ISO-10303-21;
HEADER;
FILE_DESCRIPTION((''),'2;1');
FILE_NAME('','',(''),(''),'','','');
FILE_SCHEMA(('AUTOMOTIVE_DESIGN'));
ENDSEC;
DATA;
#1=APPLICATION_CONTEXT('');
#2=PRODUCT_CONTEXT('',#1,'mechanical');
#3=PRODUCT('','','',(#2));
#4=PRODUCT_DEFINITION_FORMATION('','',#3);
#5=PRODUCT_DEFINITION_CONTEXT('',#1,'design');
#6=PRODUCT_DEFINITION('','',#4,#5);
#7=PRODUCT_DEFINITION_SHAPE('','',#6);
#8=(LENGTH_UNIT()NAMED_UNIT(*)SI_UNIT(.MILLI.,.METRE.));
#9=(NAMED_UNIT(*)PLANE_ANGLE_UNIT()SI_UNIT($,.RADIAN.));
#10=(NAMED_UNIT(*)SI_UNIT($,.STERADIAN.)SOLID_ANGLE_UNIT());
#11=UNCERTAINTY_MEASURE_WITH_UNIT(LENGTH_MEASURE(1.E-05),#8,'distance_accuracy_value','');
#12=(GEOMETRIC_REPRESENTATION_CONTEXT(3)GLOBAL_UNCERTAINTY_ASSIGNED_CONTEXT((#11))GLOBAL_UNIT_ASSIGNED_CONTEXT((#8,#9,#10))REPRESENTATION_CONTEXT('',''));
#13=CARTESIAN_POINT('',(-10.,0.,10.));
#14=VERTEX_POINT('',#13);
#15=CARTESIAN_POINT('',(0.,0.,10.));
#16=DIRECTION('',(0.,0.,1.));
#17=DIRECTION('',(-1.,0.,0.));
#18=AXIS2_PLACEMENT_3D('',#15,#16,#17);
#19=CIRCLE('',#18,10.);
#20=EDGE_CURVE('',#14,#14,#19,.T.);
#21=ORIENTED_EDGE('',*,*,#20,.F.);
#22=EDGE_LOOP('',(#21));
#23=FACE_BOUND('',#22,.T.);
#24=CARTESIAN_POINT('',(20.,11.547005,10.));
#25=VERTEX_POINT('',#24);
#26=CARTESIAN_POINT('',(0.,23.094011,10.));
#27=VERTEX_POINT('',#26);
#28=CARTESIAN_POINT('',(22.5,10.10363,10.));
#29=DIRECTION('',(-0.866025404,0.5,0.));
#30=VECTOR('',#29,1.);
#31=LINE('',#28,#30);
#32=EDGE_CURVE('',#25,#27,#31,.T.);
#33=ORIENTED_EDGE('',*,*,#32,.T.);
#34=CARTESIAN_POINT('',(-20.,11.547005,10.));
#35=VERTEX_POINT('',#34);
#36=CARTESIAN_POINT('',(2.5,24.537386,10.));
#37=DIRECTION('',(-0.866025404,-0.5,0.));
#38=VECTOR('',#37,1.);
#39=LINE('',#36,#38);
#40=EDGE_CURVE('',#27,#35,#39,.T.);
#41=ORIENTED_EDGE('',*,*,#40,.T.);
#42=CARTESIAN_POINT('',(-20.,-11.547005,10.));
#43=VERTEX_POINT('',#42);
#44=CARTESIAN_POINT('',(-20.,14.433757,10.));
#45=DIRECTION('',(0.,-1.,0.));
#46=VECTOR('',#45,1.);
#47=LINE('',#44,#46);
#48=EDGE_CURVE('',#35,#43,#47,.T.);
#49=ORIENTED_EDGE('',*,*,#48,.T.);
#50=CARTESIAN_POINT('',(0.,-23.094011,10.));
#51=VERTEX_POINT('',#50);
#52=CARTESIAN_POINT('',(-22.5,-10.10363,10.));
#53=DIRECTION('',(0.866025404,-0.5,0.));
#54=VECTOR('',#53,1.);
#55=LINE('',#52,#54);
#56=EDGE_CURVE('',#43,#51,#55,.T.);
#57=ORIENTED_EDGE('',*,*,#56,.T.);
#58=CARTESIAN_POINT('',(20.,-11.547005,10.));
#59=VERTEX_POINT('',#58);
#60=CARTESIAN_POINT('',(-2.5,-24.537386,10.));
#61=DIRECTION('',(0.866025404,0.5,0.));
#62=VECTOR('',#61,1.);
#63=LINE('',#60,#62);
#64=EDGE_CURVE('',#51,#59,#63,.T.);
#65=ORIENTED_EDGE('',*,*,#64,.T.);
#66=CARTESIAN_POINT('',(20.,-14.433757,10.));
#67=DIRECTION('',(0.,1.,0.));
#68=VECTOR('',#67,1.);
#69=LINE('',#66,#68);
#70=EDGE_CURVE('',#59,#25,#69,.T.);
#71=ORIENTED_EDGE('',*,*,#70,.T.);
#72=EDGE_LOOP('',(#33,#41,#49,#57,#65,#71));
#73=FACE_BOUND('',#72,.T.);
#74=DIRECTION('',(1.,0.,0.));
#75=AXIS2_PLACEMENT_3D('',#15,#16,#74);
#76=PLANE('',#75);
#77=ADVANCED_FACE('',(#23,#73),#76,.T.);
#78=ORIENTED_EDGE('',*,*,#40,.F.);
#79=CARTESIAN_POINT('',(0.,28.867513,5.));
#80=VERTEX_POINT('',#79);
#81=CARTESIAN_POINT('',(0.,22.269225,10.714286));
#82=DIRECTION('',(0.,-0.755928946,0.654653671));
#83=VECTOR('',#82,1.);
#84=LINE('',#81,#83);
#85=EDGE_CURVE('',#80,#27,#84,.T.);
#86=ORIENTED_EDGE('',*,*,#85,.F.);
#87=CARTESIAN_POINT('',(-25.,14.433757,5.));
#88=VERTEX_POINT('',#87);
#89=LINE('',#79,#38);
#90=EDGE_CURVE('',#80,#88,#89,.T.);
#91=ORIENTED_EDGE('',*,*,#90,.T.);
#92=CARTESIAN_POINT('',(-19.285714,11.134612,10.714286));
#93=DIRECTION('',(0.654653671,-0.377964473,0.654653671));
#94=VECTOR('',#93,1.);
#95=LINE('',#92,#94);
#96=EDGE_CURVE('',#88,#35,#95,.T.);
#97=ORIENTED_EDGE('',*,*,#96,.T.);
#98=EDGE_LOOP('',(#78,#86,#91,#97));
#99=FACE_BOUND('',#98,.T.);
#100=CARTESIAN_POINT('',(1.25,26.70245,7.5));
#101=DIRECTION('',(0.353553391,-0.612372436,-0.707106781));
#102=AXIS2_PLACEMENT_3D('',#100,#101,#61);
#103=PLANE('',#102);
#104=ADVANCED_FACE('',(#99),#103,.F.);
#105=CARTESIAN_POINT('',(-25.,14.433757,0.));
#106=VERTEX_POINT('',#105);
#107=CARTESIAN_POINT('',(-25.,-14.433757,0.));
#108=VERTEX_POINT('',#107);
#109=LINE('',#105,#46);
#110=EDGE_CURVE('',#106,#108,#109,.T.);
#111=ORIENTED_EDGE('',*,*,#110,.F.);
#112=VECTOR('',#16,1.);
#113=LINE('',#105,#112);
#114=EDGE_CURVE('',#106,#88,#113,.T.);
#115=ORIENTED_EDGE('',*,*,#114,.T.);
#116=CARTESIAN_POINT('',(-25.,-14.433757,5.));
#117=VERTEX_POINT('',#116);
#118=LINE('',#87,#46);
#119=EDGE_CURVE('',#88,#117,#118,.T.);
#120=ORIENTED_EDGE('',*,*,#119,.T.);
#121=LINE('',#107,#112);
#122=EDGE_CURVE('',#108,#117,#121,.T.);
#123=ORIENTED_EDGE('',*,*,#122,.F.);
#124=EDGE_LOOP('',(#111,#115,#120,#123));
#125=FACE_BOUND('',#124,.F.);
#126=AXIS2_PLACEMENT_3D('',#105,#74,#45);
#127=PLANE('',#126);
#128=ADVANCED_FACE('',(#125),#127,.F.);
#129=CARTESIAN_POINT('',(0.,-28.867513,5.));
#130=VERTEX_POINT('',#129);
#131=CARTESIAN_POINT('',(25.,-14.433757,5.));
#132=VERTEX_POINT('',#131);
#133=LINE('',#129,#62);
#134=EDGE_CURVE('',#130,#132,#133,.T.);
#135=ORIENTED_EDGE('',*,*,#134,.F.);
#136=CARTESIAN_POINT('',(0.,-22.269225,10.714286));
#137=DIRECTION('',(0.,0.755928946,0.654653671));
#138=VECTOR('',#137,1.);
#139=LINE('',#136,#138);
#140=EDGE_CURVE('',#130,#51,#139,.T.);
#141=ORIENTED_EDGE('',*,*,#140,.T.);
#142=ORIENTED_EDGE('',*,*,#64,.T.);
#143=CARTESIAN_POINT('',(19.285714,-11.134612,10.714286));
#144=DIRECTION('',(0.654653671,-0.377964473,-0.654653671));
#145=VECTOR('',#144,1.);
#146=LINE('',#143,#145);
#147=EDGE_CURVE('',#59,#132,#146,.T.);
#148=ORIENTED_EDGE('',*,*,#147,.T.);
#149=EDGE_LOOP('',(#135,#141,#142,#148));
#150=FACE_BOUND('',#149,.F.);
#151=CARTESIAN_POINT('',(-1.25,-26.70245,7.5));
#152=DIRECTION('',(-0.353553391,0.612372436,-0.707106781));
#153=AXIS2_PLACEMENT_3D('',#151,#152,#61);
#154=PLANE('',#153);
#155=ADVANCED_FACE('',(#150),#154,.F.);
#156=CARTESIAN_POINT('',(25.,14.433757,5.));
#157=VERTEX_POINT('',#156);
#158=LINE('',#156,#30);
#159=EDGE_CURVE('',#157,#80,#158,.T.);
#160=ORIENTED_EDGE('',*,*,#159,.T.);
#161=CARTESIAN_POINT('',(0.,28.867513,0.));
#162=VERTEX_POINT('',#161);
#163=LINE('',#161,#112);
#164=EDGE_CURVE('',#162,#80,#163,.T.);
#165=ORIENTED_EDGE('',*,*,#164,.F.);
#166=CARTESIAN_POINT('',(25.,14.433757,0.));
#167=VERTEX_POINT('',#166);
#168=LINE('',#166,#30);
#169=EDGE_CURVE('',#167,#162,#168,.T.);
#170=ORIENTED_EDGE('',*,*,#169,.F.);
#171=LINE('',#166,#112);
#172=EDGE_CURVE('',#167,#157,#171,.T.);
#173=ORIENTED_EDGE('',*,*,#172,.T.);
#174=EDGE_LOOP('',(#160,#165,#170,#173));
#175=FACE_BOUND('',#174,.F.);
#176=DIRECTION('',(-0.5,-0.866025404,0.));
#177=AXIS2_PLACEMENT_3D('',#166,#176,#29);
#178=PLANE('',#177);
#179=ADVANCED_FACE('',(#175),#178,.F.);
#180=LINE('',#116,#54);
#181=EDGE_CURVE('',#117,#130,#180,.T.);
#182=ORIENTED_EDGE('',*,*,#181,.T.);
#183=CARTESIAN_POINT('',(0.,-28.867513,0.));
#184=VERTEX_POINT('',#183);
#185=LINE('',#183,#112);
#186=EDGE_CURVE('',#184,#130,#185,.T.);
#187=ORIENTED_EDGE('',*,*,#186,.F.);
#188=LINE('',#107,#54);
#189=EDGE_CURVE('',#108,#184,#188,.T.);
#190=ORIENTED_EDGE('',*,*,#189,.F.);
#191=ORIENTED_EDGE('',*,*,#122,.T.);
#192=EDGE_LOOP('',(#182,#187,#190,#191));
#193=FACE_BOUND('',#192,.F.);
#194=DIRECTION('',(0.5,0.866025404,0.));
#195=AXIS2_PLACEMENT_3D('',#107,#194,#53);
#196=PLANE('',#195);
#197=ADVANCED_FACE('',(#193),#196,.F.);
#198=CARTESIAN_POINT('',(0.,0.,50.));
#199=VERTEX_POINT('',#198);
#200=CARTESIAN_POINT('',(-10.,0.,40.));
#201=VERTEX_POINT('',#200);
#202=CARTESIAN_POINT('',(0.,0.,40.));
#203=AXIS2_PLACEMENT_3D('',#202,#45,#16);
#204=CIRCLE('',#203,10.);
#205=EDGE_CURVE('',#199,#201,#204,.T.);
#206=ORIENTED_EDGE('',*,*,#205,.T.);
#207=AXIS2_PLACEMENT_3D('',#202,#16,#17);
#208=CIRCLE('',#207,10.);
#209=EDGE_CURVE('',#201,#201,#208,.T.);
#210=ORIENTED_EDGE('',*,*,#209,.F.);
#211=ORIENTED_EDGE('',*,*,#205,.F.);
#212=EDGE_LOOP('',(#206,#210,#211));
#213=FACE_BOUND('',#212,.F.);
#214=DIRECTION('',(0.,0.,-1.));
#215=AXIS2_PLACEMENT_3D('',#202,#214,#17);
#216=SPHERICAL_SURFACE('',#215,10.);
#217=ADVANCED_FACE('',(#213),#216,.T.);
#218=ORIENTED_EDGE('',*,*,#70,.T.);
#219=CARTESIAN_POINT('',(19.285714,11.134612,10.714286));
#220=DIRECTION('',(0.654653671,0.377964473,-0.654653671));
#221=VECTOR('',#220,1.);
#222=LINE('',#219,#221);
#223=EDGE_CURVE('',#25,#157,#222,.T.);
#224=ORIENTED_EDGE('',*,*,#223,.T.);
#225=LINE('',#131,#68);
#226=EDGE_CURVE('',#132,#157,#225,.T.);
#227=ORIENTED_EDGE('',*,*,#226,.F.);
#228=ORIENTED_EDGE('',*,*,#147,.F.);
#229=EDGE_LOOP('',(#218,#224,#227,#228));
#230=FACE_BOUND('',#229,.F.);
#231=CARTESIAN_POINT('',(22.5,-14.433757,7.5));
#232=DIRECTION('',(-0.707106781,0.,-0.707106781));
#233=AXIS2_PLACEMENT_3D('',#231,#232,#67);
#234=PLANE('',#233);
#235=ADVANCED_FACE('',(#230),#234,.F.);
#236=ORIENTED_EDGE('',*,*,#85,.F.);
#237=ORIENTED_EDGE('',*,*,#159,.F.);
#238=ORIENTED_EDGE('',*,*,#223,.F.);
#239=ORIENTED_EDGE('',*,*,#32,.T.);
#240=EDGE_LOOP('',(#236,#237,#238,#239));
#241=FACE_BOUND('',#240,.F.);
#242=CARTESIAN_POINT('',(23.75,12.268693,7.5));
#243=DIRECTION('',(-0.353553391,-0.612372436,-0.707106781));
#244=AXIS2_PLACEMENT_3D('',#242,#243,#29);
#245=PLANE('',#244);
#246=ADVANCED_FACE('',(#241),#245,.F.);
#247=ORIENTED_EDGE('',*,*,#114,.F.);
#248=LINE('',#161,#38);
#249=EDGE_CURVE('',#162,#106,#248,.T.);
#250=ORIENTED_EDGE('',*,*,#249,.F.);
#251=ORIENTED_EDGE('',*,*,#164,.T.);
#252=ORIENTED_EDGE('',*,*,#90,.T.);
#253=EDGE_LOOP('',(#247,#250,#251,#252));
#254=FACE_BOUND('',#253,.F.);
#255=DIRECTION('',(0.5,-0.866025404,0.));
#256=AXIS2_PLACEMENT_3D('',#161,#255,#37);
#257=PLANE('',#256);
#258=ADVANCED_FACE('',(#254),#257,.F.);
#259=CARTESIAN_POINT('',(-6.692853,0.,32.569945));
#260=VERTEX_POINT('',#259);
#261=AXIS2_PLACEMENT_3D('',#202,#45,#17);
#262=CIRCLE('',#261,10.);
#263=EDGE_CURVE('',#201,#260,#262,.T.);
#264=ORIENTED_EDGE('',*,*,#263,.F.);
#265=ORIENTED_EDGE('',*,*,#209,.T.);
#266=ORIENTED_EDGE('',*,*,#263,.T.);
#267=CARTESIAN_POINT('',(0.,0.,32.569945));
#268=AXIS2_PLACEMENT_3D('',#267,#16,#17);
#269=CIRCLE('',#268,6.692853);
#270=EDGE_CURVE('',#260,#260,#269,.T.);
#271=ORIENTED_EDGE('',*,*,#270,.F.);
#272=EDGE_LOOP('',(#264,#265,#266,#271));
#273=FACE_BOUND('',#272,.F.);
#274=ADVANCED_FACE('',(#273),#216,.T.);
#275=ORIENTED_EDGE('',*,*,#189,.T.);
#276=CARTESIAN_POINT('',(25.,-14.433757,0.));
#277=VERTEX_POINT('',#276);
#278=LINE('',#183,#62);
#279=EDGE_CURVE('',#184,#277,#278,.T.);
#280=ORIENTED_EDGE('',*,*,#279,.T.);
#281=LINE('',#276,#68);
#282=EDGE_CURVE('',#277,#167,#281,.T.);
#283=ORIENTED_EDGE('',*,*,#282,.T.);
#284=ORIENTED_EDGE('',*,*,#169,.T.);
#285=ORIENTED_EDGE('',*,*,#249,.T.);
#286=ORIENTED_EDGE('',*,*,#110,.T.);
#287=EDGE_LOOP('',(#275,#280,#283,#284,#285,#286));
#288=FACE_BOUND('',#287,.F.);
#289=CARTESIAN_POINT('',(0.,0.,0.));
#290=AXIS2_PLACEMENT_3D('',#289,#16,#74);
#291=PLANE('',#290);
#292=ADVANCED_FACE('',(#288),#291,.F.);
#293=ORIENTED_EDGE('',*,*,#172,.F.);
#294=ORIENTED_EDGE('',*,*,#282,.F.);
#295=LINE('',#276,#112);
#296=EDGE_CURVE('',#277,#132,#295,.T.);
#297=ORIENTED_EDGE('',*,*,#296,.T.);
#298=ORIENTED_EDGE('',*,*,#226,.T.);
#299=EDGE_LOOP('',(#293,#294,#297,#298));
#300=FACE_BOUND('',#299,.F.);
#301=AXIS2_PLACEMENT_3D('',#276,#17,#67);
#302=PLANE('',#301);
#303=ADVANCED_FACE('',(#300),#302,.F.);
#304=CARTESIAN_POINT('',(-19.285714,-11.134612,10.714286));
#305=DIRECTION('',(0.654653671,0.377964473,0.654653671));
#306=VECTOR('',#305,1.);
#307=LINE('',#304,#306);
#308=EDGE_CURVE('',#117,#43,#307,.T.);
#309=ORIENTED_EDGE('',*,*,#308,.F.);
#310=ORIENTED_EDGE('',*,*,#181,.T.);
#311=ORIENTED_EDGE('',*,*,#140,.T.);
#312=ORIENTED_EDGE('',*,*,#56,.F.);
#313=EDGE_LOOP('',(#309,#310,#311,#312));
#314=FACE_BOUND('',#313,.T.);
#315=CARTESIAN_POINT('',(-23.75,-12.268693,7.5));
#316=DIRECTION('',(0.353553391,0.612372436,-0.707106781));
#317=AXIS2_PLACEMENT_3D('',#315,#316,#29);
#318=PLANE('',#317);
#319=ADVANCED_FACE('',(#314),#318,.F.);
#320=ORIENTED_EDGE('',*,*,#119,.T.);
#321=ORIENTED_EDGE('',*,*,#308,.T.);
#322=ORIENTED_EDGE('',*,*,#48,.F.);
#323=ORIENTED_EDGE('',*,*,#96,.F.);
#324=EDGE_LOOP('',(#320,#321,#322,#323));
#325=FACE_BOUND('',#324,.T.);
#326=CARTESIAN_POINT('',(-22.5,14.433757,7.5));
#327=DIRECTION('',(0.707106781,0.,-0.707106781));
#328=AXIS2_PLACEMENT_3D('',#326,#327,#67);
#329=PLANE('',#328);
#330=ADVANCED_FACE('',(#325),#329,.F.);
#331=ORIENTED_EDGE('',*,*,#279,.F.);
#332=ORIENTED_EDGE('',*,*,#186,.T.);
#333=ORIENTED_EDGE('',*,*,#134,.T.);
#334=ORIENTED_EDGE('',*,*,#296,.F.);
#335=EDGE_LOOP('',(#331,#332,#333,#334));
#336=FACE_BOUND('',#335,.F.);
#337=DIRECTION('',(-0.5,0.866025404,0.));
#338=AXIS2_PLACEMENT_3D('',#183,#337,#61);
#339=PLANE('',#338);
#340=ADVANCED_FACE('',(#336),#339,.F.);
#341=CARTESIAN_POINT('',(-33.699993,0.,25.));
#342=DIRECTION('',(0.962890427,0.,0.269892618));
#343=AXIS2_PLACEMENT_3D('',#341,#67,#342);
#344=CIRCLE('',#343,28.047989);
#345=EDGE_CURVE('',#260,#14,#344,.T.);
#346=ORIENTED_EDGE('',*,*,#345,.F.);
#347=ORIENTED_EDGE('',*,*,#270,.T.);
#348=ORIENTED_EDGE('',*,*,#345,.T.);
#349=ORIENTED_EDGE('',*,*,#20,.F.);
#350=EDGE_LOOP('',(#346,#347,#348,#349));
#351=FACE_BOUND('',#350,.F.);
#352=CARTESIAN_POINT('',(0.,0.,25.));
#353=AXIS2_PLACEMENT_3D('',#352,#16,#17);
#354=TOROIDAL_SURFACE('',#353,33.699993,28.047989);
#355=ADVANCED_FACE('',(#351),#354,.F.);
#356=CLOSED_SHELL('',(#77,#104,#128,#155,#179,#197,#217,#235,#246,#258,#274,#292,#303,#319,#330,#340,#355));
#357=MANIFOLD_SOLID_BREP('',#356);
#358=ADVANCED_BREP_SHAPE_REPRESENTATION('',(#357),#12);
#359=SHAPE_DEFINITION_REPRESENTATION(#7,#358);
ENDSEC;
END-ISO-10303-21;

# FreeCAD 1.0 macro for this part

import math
import FreeCAD as App
import Part
import Sketcher

V = App.Vector
Q = App.Units.Quantity


def edges_at(feature, points):
    """Names of the edges that pass closest to the given points."""
    edges = feature.Shape.Edges
    near = lambda p: min(range(len(edges)), key=lambda i: edges[i].distToShape(Part.Vertex(*p))[0])
    return sorted({f"Edge{near(p) + 1}" for p in points})

doc = App.newDocument("Part")
body = doc.addObject("PartDesign::Body", "Body")

sketch1 = body.newObject("Sketcher::SketchObject", "Sketch")
sketch1.AttachmentSupport = (doc.getObject("XY_Plane"), [""])
sketch1.MapMode = "FlatFace"
sketch1.addGeometry([
    Part.LineSegment(V(-25, 14, 0), V(-25, -14, 0)),
    Part.LineSegment(V(-25, -14, 0), V(0, -29, 0)),
    Part.LineSegment(V(0, -29, 0), V(25, -14, 0)),
    Part.LineSegment(V(25, -14, 0), V(25, 14, 0)),
    Part.LineSegment(V(25, 14, 0), V(0, 29, 0)),
    Part.LineSegment(V(0, 29, 0), V(-25, 14, 0)),
], False)
sketch1.addConstraint([
    Sketcher.Constraint("Coincident", 0, 2, 1, 1),
    Sketcher.Constraint("Coincident", 1, 2, 2, 1),
    Sketcher.Constraint("Coincident", 2, 2, 3, 1),
    Sketcher.Constraint("Coincident", 3, 2, 4, 1),
    Sketcher.Constraint("Coincident", 4, 2, 5, 1),
    Sketcher.Constraint("Coincident", 5, 2, 0, 1),
    Sketcher.Constraint("Vertical", 0),
    Sketcher.Constraint("Vertical", 3),
    Sketcher.Constraint("Symmetric", 0, 2, 3, 2, -1, 1),
    Sketcher.Constraint("Symmetric", 1, 2, 4, 2, -1, 1),
    Sketcher.Constraint("PointOnObject", 1, 2, -2),
    Sketcher.Constraint("Parallel", 2, 5),
    Sketcher.Constraint("Horizontal", 0, 2, 2, 2),
    Sketcher.Constraint("Angle", 1, Q("-30 deg")),
    Sketcher.Constraint("DistanceX", 0, 2, -1, 1, Q("25 mm")),
    Sketcher.Constraint("DistanceY", 0, 2, 0, 1, Q("28.867513 mm")),
])
pad1 = body.newObject("PartDesign::Pad", "Pad")
pad1.Profile = sketch1
pad1.Length = 10

sketch2 = body.newObject("Sketcher::SketchObject", "Sketch001")
sketch2.AttachmentSupport = (doc.getObject("XZ_Plane"), [""])
sketch2.MapMode = "FlatFace"
sketch2.addGeometry([
    Part.LineSegment(V(0, 10, 0), V(0, 50, 0)),
    Part.ArcOfCircle(Part.Circle(V(0, 40, 0), V(0, 0, 1), 10), math.radians(90), math.radians(180)),
    Part.ArcOfCircle(Part.Circle(V(0, 40, 0), V(0, 0, 1), 10), math.radians(180), math.radians(228)),
    Part.ArcOfCircle(Part.Circle(V(-34, 25, 0), V(0, 0, 1), 28), math.radians(-32), math.radians(16)),
    Part.LineSegment(V(-10, 10, 0), V(0, 10, 0)),
], False)
sketch2.addConstraint([
    Sketcher.Constraint("Coincident", 0, 2, 1, 1),
    Sketcher.Constraint("Tangent", 1, 2, 2, 1),
    Sketcher.Constraint("Coincident", 2, 2, 3, 2),
    Sketcher.Constraint("Coincident", 3, 1, 4, 1),
    Sketcher.Constraint("Coincident", 4, 2, 0, 1),
    Sketcher.Constraint("Vertical", 0),
    Sketcher.Constraint("Horizontal", 4),
    Sketcher.Constraint("Equal", 1, 2),
    Sketcher.Constraint("PointOnObject", 1, 3, -2),
    Sketcher.Constraint("PointOnObject", 0, 2, -2),
    Sketcher.Constraint("Horizontal", 2, 3, 1, 2),
    Sketcher.Constraint("Vertical", 1, 2, 3, 1),
    Sketcher.Constraint("Radius", 1, Q("10 mm")),
    Sketcher.Constraint("DistanceY", 0, 1, 0, 2, Q("40 mm")),
    Sketcher.Constraint("DistanceY", -1, 1, 1, 3, Q("40 mm")),
    Sketcher.Constraint("DistanceY", -1, 1, 3, 3, Q("25 mm")),
    Sketcher.Constraint("Radius", 3, Q("28.047989 mm")),
])
revolution = body.newObject("PartDesign::Revolution", "Revolution")
revolution.Profile = sketch2
revolution.ReferenceAxis = (sketch2, ["V_Axis"])
revolution.Angle = 360
doc.recompute()

chamfer = body.newObject("PartDesign::Chamfer", "Chamfer")
chamfer.Base = (revolution, edges_at(revolution, [
    (-25, 0, 10),
    (-12.5, -21.651, 10),
    (-12.5, 21.651, 10),
    (12.5, 21.651, 10),
    (25, 0, 10),
    (12.5, -21.651, 10),
]))
chamfer.Size = 5

doc.recompute()
